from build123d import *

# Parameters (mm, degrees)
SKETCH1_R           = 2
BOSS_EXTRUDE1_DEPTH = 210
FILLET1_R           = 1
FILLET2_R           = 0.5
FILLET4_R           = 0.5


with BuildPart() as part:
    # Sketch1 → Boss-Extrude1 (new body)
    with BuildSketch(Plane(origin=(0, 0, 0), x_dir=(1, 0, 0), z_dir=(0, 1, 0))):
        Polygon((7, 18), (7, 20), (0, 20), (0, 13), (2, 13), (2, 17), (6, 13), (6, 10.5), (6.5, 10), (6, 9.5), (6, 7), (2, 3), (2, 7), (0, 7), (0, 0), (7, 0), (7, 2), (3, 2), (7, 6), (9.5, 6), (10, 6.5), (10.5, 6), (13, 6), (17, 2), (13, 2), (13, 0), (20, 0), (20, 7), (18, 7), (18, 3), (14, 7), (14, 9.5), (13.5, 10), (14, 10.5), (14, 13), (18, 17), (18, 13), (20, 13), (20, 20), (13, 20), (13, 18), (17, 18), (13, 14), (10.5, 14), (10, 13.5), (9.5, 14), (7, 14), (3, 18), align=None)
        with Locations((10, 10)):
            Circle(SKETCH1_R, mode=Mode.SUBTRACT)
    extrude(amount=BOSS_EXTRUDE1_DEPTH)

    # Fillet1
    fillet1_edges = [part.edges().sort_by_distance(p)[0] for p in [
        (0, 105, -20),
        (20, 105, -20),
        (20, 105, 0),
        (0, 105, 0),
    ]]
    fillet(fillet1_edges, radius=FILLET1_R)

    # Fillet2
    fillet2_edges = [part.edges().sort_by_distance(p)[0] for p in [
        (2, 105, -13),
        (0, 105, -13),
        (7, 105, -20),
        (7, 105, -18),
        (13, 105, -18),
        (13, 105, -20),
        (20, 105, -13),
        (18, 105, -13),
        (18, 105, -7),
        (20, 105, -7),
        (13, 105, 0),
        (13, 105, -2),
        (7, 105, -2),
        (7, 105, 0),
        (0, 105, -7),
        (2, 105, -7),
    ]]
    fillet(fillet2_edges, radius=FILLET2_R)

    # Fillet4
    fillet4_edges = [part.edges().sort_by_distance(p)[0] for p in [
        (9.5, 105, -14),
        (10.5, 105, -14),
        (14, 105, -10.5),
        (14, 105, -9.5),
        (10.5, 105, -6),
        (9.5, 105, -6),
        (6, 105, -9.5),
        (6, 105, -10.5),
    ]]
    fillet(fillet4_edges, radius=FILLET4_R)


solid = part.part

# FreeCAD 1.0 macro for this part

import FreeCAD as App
import Part
import Sketcher

V = App.Vector
Q = App.Units.Quantity


def edges_at(feature, points):
    """Names of the edges that pass closest to the given points."""
    edges = feature.Shape.Edges
    near = lambda p: min(range(len(edges)), key=lambda i: edges[i].distToShape(Part.Vertex(*p))[0])
    return sorted({f"Edge{near(p) + 1}" for p in points})

doc = App.newDocument("Part")
body = doc.addObject("PartDesign::Body", "Body")

# Sketch on XZ plane
sketch1 = body.newObject("Sketcher::SketchObject", "Sketch")
sketch1.AttachmentSupport = (doc.getObject("XZ_Plane"), [""])
sketch1.MapMode = "FlatFace"
sketch1.addGeometry([
    Part.LineSegment(V(7, -18, 0), V(7, -20, 0)),  # 0
    Part.LineSegment(V(7, -20, 0), V(0, -20, 0)),  # 1
    Part.LineSegment(V(0, -20, 0), V(0, -13, 0)),  # 2
    Part.LineSegment(V(0, -13, 0), V(2, -13, 0)),  # 3
    Part.LineSegment(V(2, -13, 0), V(2, -17, 0)),  # 4
    Part.LineSegment(V(2, -17, 0), V(6, -13, 0)),  # 5
    Part.LineSegment(V(6, -13, 0), V(6, -10.5, 0)),  # 6
    Part.LineSegment(V(6, -10.5, 0), V(6.5, -10, 0)),  # 7
    Part.LineSegment(V(6.5, -10, 0), V(6, -9.5, 0)),  # 8
    Part.LineSegment(V(6, -9.5, 0), V(6, -7, 0)),  # 9
    Part.LineSegment(V(6, -7, 0), V(2, -3, 0)),  # 10
    Part.LineSegment(V(2, -3, 0), V(2, -7, 0)),  # 11
    Part.LineSegment(V(2, -7, 0), V(0, -7, 0)),  # 12
    Part.LineSegment(V(0, -7, 0), V(0, 0, 0)),  # 13
    Part.LineSegment(V(0, 0, 0), V(7, 0, 0)),  # 14
    Part.LineSegment(V(7, 0, 0), V(7, -2, 0)),  # 15
    Part.LineSegment(V(7, -2, 0), V(3, -2, 0)),  # 16
    Part.LineSegment(V(3, -2, 0), V(7, -6, 0)),  # 17
    Part.LineSegment(V(7, -6, 0), V(9.5, -6, 0)),  # 18
    Part.LineSegment(V(9.5, -6, 0), V(10, -6.5, 0)),  # 19
    Part.LineSegment(V(10, -6.5, 0), V(10.5, -6, 0)),  # 20
    Part.LineSegment(V(10.5, -6, 0), V(13, -6, 0)),  # 21
    Part.LineSegment(V(13, -6, 0), V(17, -2, 0)),  # 22
    Part.LineSegment(V(17, -2, 0), V(13, -2, 0)),  # 23
    Part.LineSegment(V(13, -2, 0), V(13, 0, 0)),  # 24
    Part.LineSegment(V(13, 0, 0), V(20, 0, 0)),  # 25
    Part.LineSegment(V(20, 0, 0), V(20, -7, 0)),  # 26
    Part.LineSegment(V(20, -7, 0), V(18, -7, 0)),  # 27
    Part.LineSegment(V(18, -7, 0), V(18, -3, 0)),  # 28
    Part.LineSegment(V(18, -3, 0), V(14, -7, 0)),  # 29
    Part.LineSegment(V(14, -7, 0), V(14, -9.5, 0)),  # 30
    Part.LineSegment(V(14, -9.5, 0), V(13.5, -10, 0)),  # 31
    Part.LineSegment(V(13.5, -10, 0), V(14, -10.5, 0)),  # 32
    Part.LineSegment(V(14, -10.5, 0), V(14, -13, 0)),  # 33
    Part.LineSegment(V(14, -13, 0), V(18, -17, 0)),  # 34
    Part.LineSegment(V(18, -17, 0), V(18, -13, 0)),  # 35
    Part.LineSegment(V(18, -13, 0), V(20, -13, 0)),  # 36
    Part.LineSegment(V(20, -13, 0), V(20, -20, 0)),  # 37
    Part.LineSegment(V(20, -20, 0), V(13, -20, 0)),  # 38
    Part.LineSegment(V(13, -20, 0), V(13, -18, 0)),  # 39
    Part.LineSegment(V(13, -18, 0), V(17, -18, 0)),  # 40
    Part.LineSegment(V(17, -18, 0), V(13, -14, 0)),  # 41
    Part.LineSegment(V(13, -14, 0), V(10.5, -14, 0)),  # 42
    Part.LineSegment(V(10.5, -14, 0), V(10, -13.5, 0)),  # 43
    Part.LineSegment(V(10, -13.5, 0), V(9.5, -14, 0)),  # 44
    Part.LineSegment(V(9.5, -14, 0), V(7, -14, 0)),  # 45
    Part.LineSegment(V(7, -14, 0), V(3, -18, 0)),  # 46
    Part.LineSegment(V(3, -18, 0), V(7, -18, 0)),  # 47
    Part.Circle(V(10, -10, 0), V(0, 0, 1), 2),  # 48
], False)
sketch1.addConstraint([
    Sketcher.Constraint("Coincident", 0, 2, 1, 1),
    Sketcher.Constraint("Coincident", 1, 2, 2, 1),
    Sketcher.Constraint("Coincident", 2, 2, 3, 1),
    Sketcher.Constraint("Coincident", 3, 2, 4, 1),
    Sketcher.Constraint("Coincident", 4, 2, 5, 1),
    Sketcher.Constraint("Coincident", 5, 2, 6, 1),
    Sketcher.Constraint("Coincident", 6, 2, 7, 1),
    Sketcher.Constraint("Coincident", 7, 2, 8, 1),
    Sketcher.Constraint("Coincident", 8, 2, 9, 1),
    Sketcher.Constraint("Coincident", 9, 2, 10, 1),
    Sketcher.Constraint("Coincident", 10, 2, 11, 1),
    Sketcher.Constraint("Coincident", 11, 2, 12, 1),
    Sketcher.Constraint("Coincident", 12, 2, 13, 1),
    Sketcher.Constraint("Coincident", 13, 2, 14, 1),
    Sketcher.Constraint("Coincident", 14, 2, 15, 1),
    Sketcher.Constraint("Coincident", 15, 2, 16, 1),
    Sketcher.Constraint("Coincident", 16, 2, 17, 1),
    Sketcher.Constraint("Coincident", 17, 2, 18, 1),
    Sketcher.Constraint("Coincident", 18, 2, 19, 1),
    Sketcher.Constraint("Coincident", 19, 2, 20, 1),
    Sketcher.Constraint("Coincident", 20, 2, 21, 1),
    Sketcher.Constraint("Coincident", 21, 2, 22, 1),
    Sketcher.Constraint("Coincident", 22, 2, 23, 1),
    Sketcher.Constraint("Coincident", 23, 2, 24, 1),
    Sketcher.Constraint("Coincident", 24, 2, 25, 1),
    Sketcher.Constraint("Coincident", 25, 2, 26, 1),
    Sketcher.Constraint("Coincident", 26, 2, 27, 1),
    Sketcher.Constraint("Coincident", 27, 2, 28, 1),
    Sketcher.Constraint("Coincident", 28, 2, 29, 1),
    Sketcher.Constraint("Coincident", 29, 2, 30, 1),
    Sketcher.Constraint("Coincident", 30, 2, 31, 1),
    Sketcher.Constraint("Coincident", 31, 2, 32, 1),
    Sketcher.Constraint("Coincident", 32, 2, 33, 1),
    Sketcher.Constraint("Coincident", 33, 2, 34, 1),
    Sketcher.Constraint("Coincident", 34, 2, 35, 1),
    Sketcher.Constraint("Coincident", 35, 2, 36, 1),
    Sketcher.Constraint("Coincident", 36, 2, 37, 1),
    Sketcher.Constraint("Coincident", 37, 2, 38, 1),
    Sketcher.Constraint("Coincident", 38, 2, 39, 1),
    Sketcher.Constraint("Coincident", 39, 2, 40, 1),
    Sketcher.Constraint("Coincident", 40, 2, 41, 1),
    Sketcher.Constraint("Coincident", 41, 2, 42, 1),
    Sketcher.Constraint("Coincident", 42, 2, 43, 1),
    Sketcher.Constraint("Coincident", 43, 2, 44, 1),
    Sketcher.Constraint("Coincident", 44, 2, 45, 1),
    Sketcher.Constraint("Coincident", 45, 2, 46, 1),
    Sketcher.Constraint("Coincident", 46, 2, 47, 1),
    Sketcher.Constraint("Coincident", 47, 2, 0, 1),
    Sketcher.Constraint("Vertical", 0),
    Sketcher.Constraint("Horizontal", 1),
    Sketcher.Constraint("Vertical", 2),
    Sketcher.Constraint("Horizontal", 3),
    Sketcher.Constraint("Vertical", 4),
    Sketcher.Constraint("Vertical", 6),
    Sketcher.Constraint("Vertical", 9),
    Sketcher.Constraint("Vertical", 11),
    Sketcher.Constraint("Horizontal", 12),
    Sketcher.Constraint("Vertical", 13),
    Sketcher.Constraint("Horizontal", 14),
    Sketcher.Constraint("Vertical", 15),
    Sketcher.Constraint("Horizontal", 16),
    Sketcher.Constraint("Horizontal", 18),
    Sketcher.Constraint("Horizontal", 21),
    Sketcher.Constraint("Horizontal", 23),
    Sketcher.Constraint("Vertical", 24),
    Sketcher.Constraint("Horizontal", 25),
    Sketcher.Constraint("Vertical", 26),
    Sketcher.Constraint("Horizontal", 27),
    Sketcher.Constraint("Vertical", 28),
    Sketcher.Constraint("Vertical", 30),
    Sketcher.Constraint("Vertical", 33),
    Sketcher.Constraint("Vertical", 35),
    Sketcher.Constraint("Horizontal", 36),
    Sketcher.Constraint("Vertical", 37),
    Sketcher.Constraint("Horizontal", 38),
    Sketcher.Constraint("Vertical", 39),
    Sketcher.Constraint("Horizontal", 40),
    Sketcher.Constraint("Horizontal", 42),
    Sketcher.Constraint("Horizontal", 45),
    Sketcher.Constraint("Horizontal", 47),
    Sketcher.Constraint("Coincident", 13, 2, -1, 1),
    Sketcher.Constraint("PointOnObject", 1, 2, -2),
    Sketcher.Constraint("PointOnObject", 24, 2, -1),
    Sketcher.Constraint("Parallel", 5, 7),
    Sketcher.Constraint("Perpendicular", 7, 8),
    Sketcher.Constraint("Parallel", 8, 10),
    Sketcher.Constraint("Parallel", 10, 17),
    Sketcher.Constraint("Parallel", 17, 19),
    Sketcher.Constraint("Perpendicular", 19, 20),
    Sketcher.Constraint("Parallel", 20, 22),
    Sketcher.Constraint("Parallel", 22, 29),
    Sketcher.Constraint("Parallel", 29, 31),
    Sketcher.Constraint("Perpendicular", 31, 32),
    Sketcher.Constraint("Parallel", 32, 34),
    Sketcher.Constraint("Parallel", 34, 41),
    Sketcher.Constraint("Parallel", 41, 43),
    Sketcher.Constraint("Perpendicular", 43, 44),
    Sketcher.Constraint("Parallel", 44, 46),
    Sketcher.Constraint("Horizontal", 3, 2, 5, 2),
    Sketcher.Constraint("Horizontal", 48, 3, 7, 2),
    Sketcher.Constraint("Horizontal", 9, 2, 11, 2),
    Sketcher.Constraint("Horizontal", 18, 2, 20, 2),
    Sketcher.Constraint("Horizontal", 16, 2, 22, 2),
    Sketcher.Constraint("Horizontal", 12, 2, 26, 2),
    Sketcher.Constraint("Horizontal", 10, 2, 28, 2),
    Sketcher.Constraint("Horizontal", 27, 2, 29, 2),
    Sketcher.Constraint("Horizontal", 8, 2, 30, 2),
    Sketcher.Constraint("Horizontal", 7, 2, 31, 2),
    Sketcher.Constraint("Horizontal", 6, 2, 32, 2),
    Sketcher.Constraint("Horizontal", 5, 2, 33, 2),
    Sketcher.Constraint("Horizontal", 4, 2, 34, 2),
    Sketcher.Constraint("Horizontal", 33, 2, 35, 2),
    Sketcher.Constraint("Horizontal", 1, 2, 37, 2),
    Sketcher.Constraint("Horizontal", 42, 2, 44, 2),
    Sketcher.Constraint("Horizontal", 40, 2, 46, 2),
    Sketcher.Constraint("Vertical", 6, 2, 8, 2),
    Sketcher.Constraint("Vertical", 4, 2, 10, 2),
    Sketcher.Constraint("Vertical", 0, 2, 14, 2),
    Sketcher.Constraint("Vertical", 15, 2, 17, 2),
    Sketcher.Constraint("Vertical", 48, 3, 19, 2),
    Sketcher.Constraint("Vertical", 21, 2, 23, 2),
    Sketcher.Constraint("Vertical", 30, 2, 32, 2),
    Sketcher.Constraint("Vertical", 26, 2, 36, 2),
    Sketcher.Constraint("Vertical", 24, 2, 38, 2),
    Sketcher.Constraint("Vertical", 22, 2, 40, 2),
    Sketcher.Constraint("Vertical", 39, 2, 41, 2),
    Sketcher.Constraint("Vertical", 20, 2, 42, 2),
    Sketcher.Constraint("Vertical", 19, 2, 43, 2),
    Sketcher.Constraint("Vertical", 17, 2, 45, 2),
    Sketcher.Constraint("Equal", 18, 21),
    Sketcher.Constraint("Equal", 14, 25),
    Sketcher.Constraint("Equal", 12, 27),
    Sketcher.Constraint("Equal", 36, 0),
    Sketcher.Constraint("Equal", 38, 2),
    Sketcher.Constraint("Equal", 47, 4),
    Sketcher.Constraint("Equal", 45, 6),
    Sketcher.Constraint("Equal", 6, 9),
    Sketcher.Constraint("Equal", 2, 13),
    Sketcher.Constraint("Equal", 0, 15),
    Sketcher.Constraint("Equal", 8, 19),
    Sketcher.Constraint("Diameter", 48, Q("4 mm")),
    Sketcher.Constraint("DistanceX", 1, 2, 1, 1, Q("7 mm")),
    Sketcher.Constraint("DistanceX", 3, 1, 3, 2, Q("2 mm")),
    Sketcher.Constraint("DistanceX", 16, 2, 16, 1, Q("4 mm")),
    Sketcher.Constraint("DistanceX", 18, 1, 18, 2, Q("2.5 mm")),
    Sketcher.Constraint("DistanceX", -1, 1, 48, 3, Q("10 mm")),
])
pad1 = body.newObject("PartDesign::Pad", "Pad")
pad1.Profile = sketch1
pad1.Length = 210
pad1.Reversed = True
doc.recompute()

fillet = body.newObject("PartDesign::Fillet", "Fillet")
fillet.Base = (pad1, edges_at(pad1, [
    (0, 105, -20),
    (20, 105, -20),
    (20, 105, 0),
    (0, 105, 0),
]))
fillet.Radius = 1
doc.recompute()

fillet2 = body.newObject("PartDesign::Fillet", "Fillet001")
fillet2.Base = (fillet, edges_at(fillet, [
    (2, 105, -13),
    (0, 105, -13),
    (7, 105, -20),
    (7, 105, -18),
    (13, 105, -18),
    (13, 105, -20),
    (20, 105, -13),
    (18, 105, -13),
    (18, 105, -7),
    (20, 105, -7),
    (13, 105, 0),
    (13, 105, -2),
    (7, 105, -2),
    (7, 105, 0),
    (0, 105, -7),
    (2, 105, -7),
]))
fillet2.Radius = 0.5
doc.recompute()

fillet3 = body.newObject("PartDesign::Fillet", "Fillet002")
fillet3.Base = (fillet2, edges_at(fillet2, [
    (9.5, 105, -14),
    (10.5, 105, -14),
    (14, 105, -10.5),
    (14, 105, -9.5),
    (10.5, 105, -6),
    (9.5, 105, -6),
    (6, 105, -9.5),
    (6, 105, -10.5),
]))
fillet3.Radius = 0.5

doc.recompute()
